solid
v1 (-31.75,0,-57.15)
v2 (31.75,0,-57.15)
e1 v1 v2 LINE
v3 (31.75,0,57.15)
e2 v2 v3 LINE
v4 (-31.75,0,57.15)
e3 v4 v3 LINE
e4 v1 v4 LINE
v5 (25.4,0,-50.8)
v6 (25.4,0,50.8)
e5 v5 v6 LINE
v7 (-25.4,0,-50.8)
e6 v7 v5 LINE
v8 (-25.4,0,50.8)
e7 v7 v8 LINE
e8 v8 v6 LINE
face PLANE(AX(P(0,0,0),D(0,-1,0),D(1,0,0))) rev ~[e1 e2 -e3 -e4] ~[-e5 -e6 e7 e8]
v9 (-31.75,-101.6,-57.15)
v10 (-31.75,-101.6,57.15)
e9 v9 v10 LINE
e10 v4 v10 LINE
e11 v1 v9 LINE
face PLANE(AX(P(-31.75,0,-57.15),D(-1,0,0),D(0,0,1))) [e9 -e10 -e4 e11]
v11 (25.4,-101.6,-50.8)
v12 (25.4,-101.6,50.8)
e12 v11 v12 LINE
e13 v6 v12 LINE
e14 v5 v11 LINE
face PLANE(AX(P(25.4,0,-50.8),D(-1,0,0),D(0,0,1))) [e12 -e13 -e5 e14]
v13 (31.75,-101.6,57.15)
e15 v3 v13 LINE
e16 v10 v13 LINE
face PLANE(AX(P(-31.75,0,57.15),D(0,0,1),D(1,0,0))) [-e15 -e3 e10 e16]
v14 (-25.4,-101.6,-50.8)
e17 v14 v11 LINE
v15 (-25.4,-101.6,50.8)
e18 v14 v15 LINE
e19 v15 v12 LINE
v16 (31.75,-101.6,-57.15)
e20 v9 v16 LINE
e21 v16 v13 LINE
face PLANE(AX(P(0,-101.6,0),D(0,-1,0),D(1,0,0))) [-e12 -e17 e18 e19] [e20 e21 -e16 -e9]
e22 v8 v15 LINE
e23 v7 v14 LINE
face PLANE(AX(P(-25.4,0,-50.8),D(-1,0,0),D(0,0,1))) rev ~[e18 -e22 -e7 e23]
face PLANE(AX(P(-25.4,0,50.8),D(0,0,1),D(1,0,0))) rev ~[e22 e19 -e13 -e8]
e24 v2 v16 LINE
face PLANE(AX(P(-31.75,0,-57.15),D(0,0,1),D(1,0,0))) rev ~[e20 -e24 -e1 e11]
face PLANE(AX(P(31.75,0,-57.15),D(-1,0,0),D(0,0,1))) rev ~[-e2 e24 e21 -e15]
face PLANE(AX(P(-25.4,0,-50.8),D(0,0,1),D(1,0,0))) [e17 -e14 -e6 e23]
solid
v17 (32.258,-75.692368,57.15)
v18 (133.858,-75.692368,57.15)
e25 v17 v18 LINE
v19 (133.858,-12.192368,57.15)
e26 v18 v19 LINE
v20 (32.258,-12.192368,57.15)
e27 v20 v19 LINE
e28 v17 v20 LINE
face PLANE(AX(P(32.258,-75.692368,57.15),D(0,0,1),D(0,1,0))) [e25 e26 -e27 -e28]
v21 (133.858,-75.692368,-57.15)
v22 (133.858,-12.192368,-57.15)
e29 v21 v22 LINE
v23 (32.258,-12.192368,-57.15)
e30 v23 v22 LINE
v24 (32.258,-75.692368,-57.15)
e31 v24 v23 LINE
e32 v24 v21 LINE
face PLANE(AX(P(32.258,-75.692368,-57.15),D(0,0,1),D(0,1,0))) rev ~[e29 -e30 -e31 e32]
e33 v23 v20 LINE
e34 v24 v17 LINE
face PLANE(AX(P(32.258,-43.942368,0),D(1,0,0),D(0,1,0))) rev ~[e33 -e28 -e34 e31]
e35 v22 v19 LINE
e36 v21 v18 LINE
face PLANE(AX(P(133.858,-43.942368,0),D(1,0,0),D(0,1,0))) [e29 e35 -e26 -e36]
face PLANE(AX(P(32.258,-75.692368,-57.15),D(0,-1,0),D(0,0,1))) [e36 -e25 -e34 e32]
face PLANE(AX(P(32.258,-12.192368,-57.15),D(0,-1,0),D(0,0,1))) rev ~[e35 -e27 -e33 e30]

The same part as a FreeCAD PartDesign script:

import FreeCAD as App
import Part
import Sketcher
from FreeCAD import Vector
Q = App.Units.Quantity


def add_polygon(sketch, points):
    """Adds a closed chain of lines whose ends are joined by coincident constraints."""
    first, n = sketch.GeometryCount, len(points)
    for a, b in zip(points, points[1:] + points[:1]):
        sketch.addGeometry(Part.LineSegment(App.Vector(*a, 0), App.Vector(*b, 0)), False)
    for i in range(n):
        sketch.addConstraint(Sketcher.Constraint("Coincident", first + i, 2, first + (i + 1) % n, 1))

doc = App.newDocument("Part")
body = doc.addObject("PartDesign::Body", "Body")

# Sketch on XZ plane
sketch1 = body.newObject("Sketcher::SketchObject", "Sketch")
sketch1.AttachmentSupport = (doc.getObject("XZ_Plane"), [""])
sketch1.MapMode = "FlatFace"
add_polygon(sketch1, [(-32, 57), (-32, -57), (32, -57), (32, 57)])  # lines 0-3
add_polygon(sketch1, [(25, -51), (-25, -51), (-25, 51), (25, 51)])  # lines 4-7
sketch1.addConstraint(Sketcher.Constraint("Vertical", 0))
sketch1.addConstraint(Sketcher.Constraint("Horizontal", 1))
sketch1.addConstraint(Sketcher.Constraint("Vertical", 2))
sketch1.addConstraint(Sketcher.Constraint("Horizontal", 3))
sketch1.addConstraint(Sketcher.Constraint("Horizontal", 4))
sketch1.addConstraint(Sketcher.Constraint("Vertical", 5))
sketch1.addConstraint(Sketcher.Constraint("Horizontal", 6))
sketch1.addConstraint(Sketcher.Constraint("Vertical", 7))
sketch1.addConstraint(Sketcher.Constraint("Symmetric", 0, 2, 2, 2, -1, 1))
sketch1.addConstraint(Sketcher.Constraint("Symmetric", 4, 2, 6, 2, -1, 1))
sketch1.addConstraint(Sketcher.Constraint("DistanceX", 4, 2, 4, 1, Q("2 in")))
sketch1.addConstraint(Sketcher.Constraint("DistanceY", 5, 1, 5, 2, Q("4 in")))
sketch1.addConstraint(Sketcher.Constraint("DistanceX", 1, 1, 1, 2, Q("2.5 in")))
sketch1.addConstraint(Sketcher.Constraint("DistanceY", 0, 2, 0, 1, Q("4.5 in")))
pad1 = body.newObject("PartDesign::Pad", "Pad")
pad1.Profile = sketch1
pad1.Length = Q("4 in")
body2 = doc.addObject("PartDesign::Body", "Body001")

# Sketch on YZ plane
sketch2 = body2.newObject("Sketcher::SketchObject", "Sketch001")
sketch2.AttachmentSupport = (doc.getObject("YZ_Plane001"), [""])
sketch2.MapMode = "FlatFace"
sketch2.AttachmentOffset = App.Placement(Vector(0, 0, 1.27 * 25.4), App.Rotation())
add_polygon(sketch2, [(-76, 57), (-76, -57), (-12, -57), (-12, 57)])  # lines 0-3
sketch2.addConstraint(Sketcher.Constraint("Vertical", 0))
sketch2.addConstraint(Sketcher.Constraint("Horizontal", 1))
sketch2.addConstraint(Sketcher.Constraint("Vertical", 2))
sketch2.addConstraint(Sketcher.Constraint("Horizontal", 3))
sketch2.addConstraint(Sketcher.Constraint("DistanceX", 1, 1, 1, 2, Q("2.5 in")))
sketch2.addConstraint(Sketcher.Constraint("DistanceY", 0, 2, 0, 1, Q("4.5 in")))
sketch2.addConstraint(Sketcher.Constraint("DistanceY", 0, 2, -1, 1, Q("2.25 in")))
sketch2.addConstraint(Sketcher.Constraint("DistanceX", 0, 2, -1, 1, 75.692368))
pad2 = body2.newObject("PartDesign::Pad", "Pad001")
pad2.Profile = sketch2
pad2.Length = Q("4 in")

doc.recompute()
